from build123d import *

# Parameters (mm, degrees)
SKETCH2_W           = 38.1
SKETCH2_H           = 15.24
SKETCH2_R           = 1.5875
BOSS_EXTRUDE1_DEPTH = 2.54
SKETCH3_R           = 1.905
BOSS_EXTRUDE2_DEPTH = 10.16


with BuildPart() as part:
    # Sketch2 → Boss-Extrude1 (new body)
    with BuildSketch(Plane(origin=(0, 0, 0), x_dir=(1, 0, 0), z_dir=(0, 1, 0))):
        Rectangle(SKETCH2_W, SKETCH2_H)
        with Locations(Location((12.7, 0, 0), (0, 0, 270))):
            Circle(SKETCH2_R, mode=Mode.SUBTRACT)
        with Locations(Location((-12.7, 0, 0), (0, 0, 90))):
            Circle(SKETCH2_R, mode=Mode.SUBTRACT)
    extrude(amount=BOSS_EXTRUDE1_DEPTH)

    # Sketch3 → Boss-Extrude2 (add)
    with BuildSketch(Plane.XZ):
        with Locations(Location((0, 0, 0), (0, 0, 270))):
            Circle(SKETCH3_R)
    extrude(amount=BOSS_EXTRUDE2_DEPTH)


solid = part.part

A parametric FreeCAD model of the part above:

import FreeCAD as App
import Part
import Sketcher
Q = App.Units.Quantity

doc = App.newDocument("Part")
body = doc.addObject("PartDesign::Body", "Body")

# Sketch on XZ plane
sketch1 = doc.addObject("Sketcher::SketchObject", "Sketch")
body.addObject(sketch1)
sketch1.AttachmentSupport = (doc.XZ_Plane, [""])
sketch1.MapMode = "FlatFace"
sketch1.addGeometry([
    Part.LineSegment(App.Vector(-19.05, -7.62, 0), App.Vector(-19.05, 7.62, 0)),  # 0
    Part.LineSegment(App.Vector(-19.05, 7.62, 0), App.Vector(19.05, 7.62, 0)),  # 1
    Part.LineSegment(App.Vector(19.05, 7.62, 0), App.Vector(19.05, -7.62, 0)),  # 2
    Part.LineSegment(App.Vector(19.05, -7.62, 0), App.Vector(-19.05, -7.62, 0)),  # 3
    Part.Circle(App.Vector(-12.7, 0, 0), App.Vector(0, 0, 1), 1.5875),  # 4
    Part.Circle(App.Vector(12.7, 0, 0), App.Vector(0, 0, 1), 1.5875),  # 5
], False)
sketch1.addConstraint([
    Sketcher.Constraint("Coincident", 0, 2, 1, 1),
    Sketcher.Constraint("Coincident", 1, 2, 2, 1),
    Sketcher.Constraint("Coincident", 2, 2, 3, 1),
    Sketcher.Constraint("Coincident", 3, 2, 0, 1),
    Sketcher.Constraint("Vertical", 0),
    Sketcher.Constraint("Horizontal", 1),
    Sketcher.Constraint("Vertical", 2),
    Sketcher.Constraint("Horizontal", 3),
    Sketcher.Constraint("Equal", 4, 5),
    Sketcher.Constraint("Symmetric", 4, 3, 5, 3, -1, 1),
    Sketcher.Constraint("Symmetric", 0, 2, 2, 2, -1, 1),
    Sketcher.Constraint("PointOnObject", 4, 3, -1),
    Sketcher.Constraint("Diameter", 4, Q("0.125 in")),
    Sketcher.Constraint("DistanceX", 1, 1, 1, 2, Q("1.5 in")),
    Sketcher.Constraint("DistanceY", 0, 1, 0, 2, Q("0.6 in")),
    Sketcher.Constraint("DistanceX", 4, 3, 5, 3, Q("1 in")),
])
pad1 = doc.addObject("PartDesign::Pad", "Pad")
body.addObject(pad1)
pad1.Profile = sketch1
pad1.Length = Q("0.1 in")
pad1.Reversed = True

# Sketch on XZ plane
sketch2 = doc.addObject("Sketcher::SketchObject", "Sketch001")
body.addObject(sketch2)
sketch2.AttachmentSupport = (doc.XZ_Plane, [""])
sketch2.MapMode = "FlatFace"
sketch2.addGeometry(Part.Circle(App.Vector(0, 0, 0), App.Vector(0, 0, 1), 1.905), False)
sketch2.addConstraint([
    Sketcher.Constraint("Coincident", 0, 3, -1, 1),
    Sketcher.Constraint("Diameter", 0, Q("0.15 in")),
])
pad2 = doc.addObject("PartDesign::Pad", "Pad001")
body.addObject(pad2)
pad2.Profile = sketch2
pad2.Length = Q("0.4 in")

doc.recompute()
